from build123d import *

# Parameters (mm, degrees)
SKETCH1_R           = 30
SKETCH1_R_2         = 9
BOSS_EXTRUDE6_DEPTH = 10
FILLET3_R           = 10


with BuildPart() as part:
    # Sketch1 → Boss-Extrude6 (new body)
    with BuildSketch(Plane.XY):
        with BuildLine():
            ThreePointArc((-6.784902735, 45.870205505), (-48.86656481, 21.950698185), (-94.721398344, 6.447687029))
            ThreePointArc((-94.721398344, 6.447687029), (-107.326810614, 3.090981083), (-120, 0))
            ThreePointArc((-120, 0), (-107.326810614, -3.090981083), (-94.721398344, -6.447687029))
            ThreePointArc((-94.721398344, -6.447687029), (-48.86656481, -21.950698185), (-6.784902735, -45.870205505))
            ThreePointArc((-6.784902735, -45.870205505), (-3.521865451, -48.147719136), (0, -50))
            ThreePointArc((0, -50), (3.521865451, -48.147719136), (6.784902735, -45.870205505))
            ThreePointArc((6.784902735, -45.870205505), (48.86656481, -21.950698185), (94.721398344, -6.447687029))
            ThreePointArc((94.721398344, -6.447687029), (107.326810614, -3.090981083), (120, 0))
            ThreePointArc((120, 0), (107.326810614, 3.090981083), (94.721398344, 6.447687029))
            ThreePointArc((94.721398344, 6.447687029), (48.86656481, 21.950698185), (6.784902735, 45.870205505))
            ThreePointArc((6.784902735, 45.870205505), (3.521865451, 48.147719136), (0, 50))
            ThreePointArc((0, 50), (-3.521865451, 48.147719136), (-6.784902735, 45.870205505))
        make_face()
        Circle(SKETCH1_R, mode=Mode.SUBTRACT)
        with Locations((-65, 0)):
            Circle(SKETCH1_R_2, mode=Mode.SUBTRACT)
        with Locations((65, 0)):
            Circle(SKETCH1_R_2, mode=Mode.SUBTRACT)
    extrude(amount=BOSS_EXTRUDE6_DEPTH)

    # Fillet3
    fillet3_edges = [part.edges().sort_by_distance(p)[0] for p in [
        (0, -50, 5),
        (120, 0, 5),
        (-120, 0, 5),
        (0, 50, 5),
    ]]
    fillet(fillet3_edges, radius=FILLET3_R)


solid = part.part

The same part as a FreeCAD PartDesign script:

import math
import FreeCAD as App
import Part
import Sketcher

V = App.Vector


def edges_at(feature, points):
    """Names of the edges that pass closest to the given points."""
    edges = feature.Shape.Edges
    near = lambda p: min(range(len(edges)), key=lambda i: edges[i].distToShape(Part.Vertex(*p))[0])
    return sorted({f"Edge{near(p) + 1}" for p in points})

doc = App.newDocument("Part")
params = doc.addObject("Spreadsheet::Sheet", "Params")
for row, (alias, value) in enumerate([
    ("sketch1_diameter", "18 mm"),
    ("sketch1_diameter2", "60 mm"),
    ("pad1_length", "10 mm"),
    ("fillet_radius", "10 mm"),
], start=1):
    params.set(f"A{row}", alias)
    params.set(f"B{row}", "=" + value)
    params.setAlias(f"B{row}", alias)

body = doc.addObject("PartDesign::Body", "Body")

# Sketch on XY plane
sketch1 = doc.addObject("Sketcher::SketchObject", "Sketch")
body.addObject(sketch1)
sketch1.AttachmentSupport = (doc.XY_Plane, [""])
sketch1.MapMode = "FlatFace"
sketch1.addGeometry([
    Part.ArcOfCircle(Part.Circle(V(-152.782581, 253.747414, 0), V(0, 0, 1), 254.024124), math.radians(-76.787361), math.radians(-54.918614)),  # 0
    Part.ArcOfCircle(Part.Circle(V(-260.687057, 604.350405, 0), V(0, 0, 1), 620.509678), math.radians(-76.895475), math.radians(-74.486425)),  # 1
    Part.ArcOfCircle(Part.Circle(V(-260.687057, -604.350405, 0), V(0, 0, 1), 620.509678), math.radians(74.486425), math.radians(76.895475)),  # 2
    Part.ArcOfCircle(Part.Circle(V(-152.782581, -253.747414, 0), V(0, 0, 1), 254.024124), math.radians(54.918614), math.radians(76.787361)),  # 3
    Part.ArcOfCircle(Part.Circle(V(13.016322, -20.976878, 0), V(0, 0, 1), 31.808273), math.radians(-128.50025), math.radians(-114.155333)),  # 4
    Part.ArcOfCircle(Part.Circle(V(-13.016322, -20.976878, 0), V(0, 0, 1), 31.808273), math.radians(-65.844667), math.radians(-51.49975)),  # 5
    Part.ArcOfCircle(Part.Circle(V(152.782581, -253.747414, 0), V(0, 0, 1), 254.024124), math.radians(103.212639), math.radians(125.081386)),  # 6
    Part.ArcOfCircle(Part.Circle(V(260.687057, -604.350405, 0), V(0, 0, 1), 620.509678), math.radians(103.104525), math.radians(105.513575)),  # 7
    Part.ArcOfCircle(Part.Circle(V(260.687057, 604.350405, 0), V(0, 0, 1), 620.509678), math.radians(-105.513575), math.radians(-103.104525)),  # 8
    Part.ArcOfCircle(Part.Circle(V(152.782581, 253.747414, 0), V(0, 0, 1), 254.024124), math.radians(-125.081386), math.radians(-103.212639)),  # 9
    Part.ArcOfCircle(Part.Circle(V(-13.016322, 20.976878, 0), V(0, 0, 1), 31.808273), math.radians(51.49975), math.radians(65.844667)),  # 10
    Part.ArcOfCircle(Part.Circle(V(13.016322, 20.976878, 0), V(0, 0, 1), 31.808273), math.radians(114.155333), math.radians(128.50025)),  # 11
    Part.Circle(V(-65, 0, 0), V(0, 0, 1), 9),  # 12
    Part.Circle(V(0, 0, 0), V(0, 0, 1), 30),  # 13
    Part.Circle(V(65, 0, 0), V(0, 0, 1), 9),  # 14
], False)
sketch1.addConstraint([
    Sketcher.Constraint("Coincident", 0, 1, 1, 2),
    Sketcher.Constraint("Coincident", 1, 1, 2, 2),
    Sketcher.Constraint("Coincident", 2, 1, 3, 2),
    Sketcher.Constraint("Coincident", 3, 1, 4, 1),
    Sketcher.Constraint("Coincident", 4, 2, 5, 1),
    Sketcher.Constraint("Coincident", 5, 2, 6, 2),
    Sketcher.Constraint("Coincident", 6, 1, 7, 2),
    Sketcher.Constraint("Coincident", 7, 1, 8, 2),
    Sketcher.Constraint("Coincident", 8, 1, 9, 2),
    Sketcher.Constraint("Coincident", 9, 1, 10, 1),
    Sketcher.Constraint("Coincident", 10, 2, 11, 1),
    Sketcher.Constraint("Coincident", 11, 2, 0, 2),
    Sketcher.Constraint("Coincident", 13, 3, -1, 1),
    Sketcher.Constraint("Equal", 1, 2),
    Sketcher.Constraint("Equal", 0, 3),
    Sketcher.Constraint("Equal", 4, 5),
    Sketcher.Constraint("Equal", 3, 6),
    Sketcher.Constraint("Equal", 2, 7),
    Sketcher.Constraint("Equal", 7, 8),
    Sketcher.Constraint("Equal", 6, 9),
    Sketcher.Constraint("Equal", 5, 10),
    Sketcher.Constraint("Equal", 10, 11),
    Sketcher.Constraint("Equal", 12, 14),
    Sketcher.Constraint("Symmetric", 0, 3, 6, 3, -1, 1),
    Sketcher.Constraint("Symmetric", 1, 3, 7, 3, -1, 1),
    Sketcher.Constraint("Symmetric", 2, 3, 8, 3, -1, 1),
    Sketcher.Constraint("Symmetric", 3, 3, 9, 3, -1, 1),
    Sketcher.Constraint("Symmetric", 4, 3, 10, 3, -1, 1),
    Sketcher.Constraint("Symmetric", 5, 3, 11, 3, -1, 1),
    Sketcher.Constraint("Symmetric", 12, 3, 14, 3, -1, 1),
    Sketcher.Constraint("Symmetric", 4, 3, 5, 3, -2),
    Sketcher.Constraint("Symmetric", 3, 3, 6, 3, -2),
    Sketcher.Constraint("Symmetric", 2, 3, 7, 3, -2),
    Sketcher.Constraint("PointOnObject", 12, 3, -1),
    Sketcher.Constraint("Diameter", 12, 18.0),
    Sketcher.Constraint("Diameter", 13, 60.0),
    Sketcher.Constraint("DistanceX", 12, 3, -1, 1, 65.0),
    Sketcher.Constraint("DistanceX", 1, 1, -1, 1, 120.0),
    Sketcher.Constraint("DistanceY", 4, 2, -1, 1, 50.0),
    Sketcher.Constraint("Radius", 0, 254.024124),
    Sketcher.Constraint("Radius", 1, 620.509678),
    Sketcher.Constraint("Radius", 4, 31.808273),
    Sketcher.Constraint("DistanceX", 0, 1, -1, 1, 94.721398),
    Sketcher.Constraint("DistanceX", 0, 3, -1, 1, 152.782581),
    Sketcher.Constraint("DistanceX", -1, 1, 4, 3, 13.016322),
    Sketcher.Constraint("DistanceY", 0, 3, 1, 3, 350.602991),
])
sketch1.setExpression("Constraints[34]", "Params.sketch1_diameter")
sketch1.setExpression("Constraints[35]", "Params.sketch1_diameter2")
pad1 = doc.addObject("PartDesign::Pad", "Pad")
body.addObject(pad1)
pad1.Profile = sketch1
pad1.setExpression("Length", "Params.pad1_length")
doc.recompute()

fillet = doc.addObject("PartDesign::Fillet", "Fillet")
body.addObject(fillet)
fillet.Base = (pad1, edges_at(pad1, [
    (0, -50, 5),
    (120, 0, 5),
    (-120, 0, 5),
    (0, 50, 5),
]))
fillet.setExpression("Radius", "Params.fillet_radius")

doc.recompute()
